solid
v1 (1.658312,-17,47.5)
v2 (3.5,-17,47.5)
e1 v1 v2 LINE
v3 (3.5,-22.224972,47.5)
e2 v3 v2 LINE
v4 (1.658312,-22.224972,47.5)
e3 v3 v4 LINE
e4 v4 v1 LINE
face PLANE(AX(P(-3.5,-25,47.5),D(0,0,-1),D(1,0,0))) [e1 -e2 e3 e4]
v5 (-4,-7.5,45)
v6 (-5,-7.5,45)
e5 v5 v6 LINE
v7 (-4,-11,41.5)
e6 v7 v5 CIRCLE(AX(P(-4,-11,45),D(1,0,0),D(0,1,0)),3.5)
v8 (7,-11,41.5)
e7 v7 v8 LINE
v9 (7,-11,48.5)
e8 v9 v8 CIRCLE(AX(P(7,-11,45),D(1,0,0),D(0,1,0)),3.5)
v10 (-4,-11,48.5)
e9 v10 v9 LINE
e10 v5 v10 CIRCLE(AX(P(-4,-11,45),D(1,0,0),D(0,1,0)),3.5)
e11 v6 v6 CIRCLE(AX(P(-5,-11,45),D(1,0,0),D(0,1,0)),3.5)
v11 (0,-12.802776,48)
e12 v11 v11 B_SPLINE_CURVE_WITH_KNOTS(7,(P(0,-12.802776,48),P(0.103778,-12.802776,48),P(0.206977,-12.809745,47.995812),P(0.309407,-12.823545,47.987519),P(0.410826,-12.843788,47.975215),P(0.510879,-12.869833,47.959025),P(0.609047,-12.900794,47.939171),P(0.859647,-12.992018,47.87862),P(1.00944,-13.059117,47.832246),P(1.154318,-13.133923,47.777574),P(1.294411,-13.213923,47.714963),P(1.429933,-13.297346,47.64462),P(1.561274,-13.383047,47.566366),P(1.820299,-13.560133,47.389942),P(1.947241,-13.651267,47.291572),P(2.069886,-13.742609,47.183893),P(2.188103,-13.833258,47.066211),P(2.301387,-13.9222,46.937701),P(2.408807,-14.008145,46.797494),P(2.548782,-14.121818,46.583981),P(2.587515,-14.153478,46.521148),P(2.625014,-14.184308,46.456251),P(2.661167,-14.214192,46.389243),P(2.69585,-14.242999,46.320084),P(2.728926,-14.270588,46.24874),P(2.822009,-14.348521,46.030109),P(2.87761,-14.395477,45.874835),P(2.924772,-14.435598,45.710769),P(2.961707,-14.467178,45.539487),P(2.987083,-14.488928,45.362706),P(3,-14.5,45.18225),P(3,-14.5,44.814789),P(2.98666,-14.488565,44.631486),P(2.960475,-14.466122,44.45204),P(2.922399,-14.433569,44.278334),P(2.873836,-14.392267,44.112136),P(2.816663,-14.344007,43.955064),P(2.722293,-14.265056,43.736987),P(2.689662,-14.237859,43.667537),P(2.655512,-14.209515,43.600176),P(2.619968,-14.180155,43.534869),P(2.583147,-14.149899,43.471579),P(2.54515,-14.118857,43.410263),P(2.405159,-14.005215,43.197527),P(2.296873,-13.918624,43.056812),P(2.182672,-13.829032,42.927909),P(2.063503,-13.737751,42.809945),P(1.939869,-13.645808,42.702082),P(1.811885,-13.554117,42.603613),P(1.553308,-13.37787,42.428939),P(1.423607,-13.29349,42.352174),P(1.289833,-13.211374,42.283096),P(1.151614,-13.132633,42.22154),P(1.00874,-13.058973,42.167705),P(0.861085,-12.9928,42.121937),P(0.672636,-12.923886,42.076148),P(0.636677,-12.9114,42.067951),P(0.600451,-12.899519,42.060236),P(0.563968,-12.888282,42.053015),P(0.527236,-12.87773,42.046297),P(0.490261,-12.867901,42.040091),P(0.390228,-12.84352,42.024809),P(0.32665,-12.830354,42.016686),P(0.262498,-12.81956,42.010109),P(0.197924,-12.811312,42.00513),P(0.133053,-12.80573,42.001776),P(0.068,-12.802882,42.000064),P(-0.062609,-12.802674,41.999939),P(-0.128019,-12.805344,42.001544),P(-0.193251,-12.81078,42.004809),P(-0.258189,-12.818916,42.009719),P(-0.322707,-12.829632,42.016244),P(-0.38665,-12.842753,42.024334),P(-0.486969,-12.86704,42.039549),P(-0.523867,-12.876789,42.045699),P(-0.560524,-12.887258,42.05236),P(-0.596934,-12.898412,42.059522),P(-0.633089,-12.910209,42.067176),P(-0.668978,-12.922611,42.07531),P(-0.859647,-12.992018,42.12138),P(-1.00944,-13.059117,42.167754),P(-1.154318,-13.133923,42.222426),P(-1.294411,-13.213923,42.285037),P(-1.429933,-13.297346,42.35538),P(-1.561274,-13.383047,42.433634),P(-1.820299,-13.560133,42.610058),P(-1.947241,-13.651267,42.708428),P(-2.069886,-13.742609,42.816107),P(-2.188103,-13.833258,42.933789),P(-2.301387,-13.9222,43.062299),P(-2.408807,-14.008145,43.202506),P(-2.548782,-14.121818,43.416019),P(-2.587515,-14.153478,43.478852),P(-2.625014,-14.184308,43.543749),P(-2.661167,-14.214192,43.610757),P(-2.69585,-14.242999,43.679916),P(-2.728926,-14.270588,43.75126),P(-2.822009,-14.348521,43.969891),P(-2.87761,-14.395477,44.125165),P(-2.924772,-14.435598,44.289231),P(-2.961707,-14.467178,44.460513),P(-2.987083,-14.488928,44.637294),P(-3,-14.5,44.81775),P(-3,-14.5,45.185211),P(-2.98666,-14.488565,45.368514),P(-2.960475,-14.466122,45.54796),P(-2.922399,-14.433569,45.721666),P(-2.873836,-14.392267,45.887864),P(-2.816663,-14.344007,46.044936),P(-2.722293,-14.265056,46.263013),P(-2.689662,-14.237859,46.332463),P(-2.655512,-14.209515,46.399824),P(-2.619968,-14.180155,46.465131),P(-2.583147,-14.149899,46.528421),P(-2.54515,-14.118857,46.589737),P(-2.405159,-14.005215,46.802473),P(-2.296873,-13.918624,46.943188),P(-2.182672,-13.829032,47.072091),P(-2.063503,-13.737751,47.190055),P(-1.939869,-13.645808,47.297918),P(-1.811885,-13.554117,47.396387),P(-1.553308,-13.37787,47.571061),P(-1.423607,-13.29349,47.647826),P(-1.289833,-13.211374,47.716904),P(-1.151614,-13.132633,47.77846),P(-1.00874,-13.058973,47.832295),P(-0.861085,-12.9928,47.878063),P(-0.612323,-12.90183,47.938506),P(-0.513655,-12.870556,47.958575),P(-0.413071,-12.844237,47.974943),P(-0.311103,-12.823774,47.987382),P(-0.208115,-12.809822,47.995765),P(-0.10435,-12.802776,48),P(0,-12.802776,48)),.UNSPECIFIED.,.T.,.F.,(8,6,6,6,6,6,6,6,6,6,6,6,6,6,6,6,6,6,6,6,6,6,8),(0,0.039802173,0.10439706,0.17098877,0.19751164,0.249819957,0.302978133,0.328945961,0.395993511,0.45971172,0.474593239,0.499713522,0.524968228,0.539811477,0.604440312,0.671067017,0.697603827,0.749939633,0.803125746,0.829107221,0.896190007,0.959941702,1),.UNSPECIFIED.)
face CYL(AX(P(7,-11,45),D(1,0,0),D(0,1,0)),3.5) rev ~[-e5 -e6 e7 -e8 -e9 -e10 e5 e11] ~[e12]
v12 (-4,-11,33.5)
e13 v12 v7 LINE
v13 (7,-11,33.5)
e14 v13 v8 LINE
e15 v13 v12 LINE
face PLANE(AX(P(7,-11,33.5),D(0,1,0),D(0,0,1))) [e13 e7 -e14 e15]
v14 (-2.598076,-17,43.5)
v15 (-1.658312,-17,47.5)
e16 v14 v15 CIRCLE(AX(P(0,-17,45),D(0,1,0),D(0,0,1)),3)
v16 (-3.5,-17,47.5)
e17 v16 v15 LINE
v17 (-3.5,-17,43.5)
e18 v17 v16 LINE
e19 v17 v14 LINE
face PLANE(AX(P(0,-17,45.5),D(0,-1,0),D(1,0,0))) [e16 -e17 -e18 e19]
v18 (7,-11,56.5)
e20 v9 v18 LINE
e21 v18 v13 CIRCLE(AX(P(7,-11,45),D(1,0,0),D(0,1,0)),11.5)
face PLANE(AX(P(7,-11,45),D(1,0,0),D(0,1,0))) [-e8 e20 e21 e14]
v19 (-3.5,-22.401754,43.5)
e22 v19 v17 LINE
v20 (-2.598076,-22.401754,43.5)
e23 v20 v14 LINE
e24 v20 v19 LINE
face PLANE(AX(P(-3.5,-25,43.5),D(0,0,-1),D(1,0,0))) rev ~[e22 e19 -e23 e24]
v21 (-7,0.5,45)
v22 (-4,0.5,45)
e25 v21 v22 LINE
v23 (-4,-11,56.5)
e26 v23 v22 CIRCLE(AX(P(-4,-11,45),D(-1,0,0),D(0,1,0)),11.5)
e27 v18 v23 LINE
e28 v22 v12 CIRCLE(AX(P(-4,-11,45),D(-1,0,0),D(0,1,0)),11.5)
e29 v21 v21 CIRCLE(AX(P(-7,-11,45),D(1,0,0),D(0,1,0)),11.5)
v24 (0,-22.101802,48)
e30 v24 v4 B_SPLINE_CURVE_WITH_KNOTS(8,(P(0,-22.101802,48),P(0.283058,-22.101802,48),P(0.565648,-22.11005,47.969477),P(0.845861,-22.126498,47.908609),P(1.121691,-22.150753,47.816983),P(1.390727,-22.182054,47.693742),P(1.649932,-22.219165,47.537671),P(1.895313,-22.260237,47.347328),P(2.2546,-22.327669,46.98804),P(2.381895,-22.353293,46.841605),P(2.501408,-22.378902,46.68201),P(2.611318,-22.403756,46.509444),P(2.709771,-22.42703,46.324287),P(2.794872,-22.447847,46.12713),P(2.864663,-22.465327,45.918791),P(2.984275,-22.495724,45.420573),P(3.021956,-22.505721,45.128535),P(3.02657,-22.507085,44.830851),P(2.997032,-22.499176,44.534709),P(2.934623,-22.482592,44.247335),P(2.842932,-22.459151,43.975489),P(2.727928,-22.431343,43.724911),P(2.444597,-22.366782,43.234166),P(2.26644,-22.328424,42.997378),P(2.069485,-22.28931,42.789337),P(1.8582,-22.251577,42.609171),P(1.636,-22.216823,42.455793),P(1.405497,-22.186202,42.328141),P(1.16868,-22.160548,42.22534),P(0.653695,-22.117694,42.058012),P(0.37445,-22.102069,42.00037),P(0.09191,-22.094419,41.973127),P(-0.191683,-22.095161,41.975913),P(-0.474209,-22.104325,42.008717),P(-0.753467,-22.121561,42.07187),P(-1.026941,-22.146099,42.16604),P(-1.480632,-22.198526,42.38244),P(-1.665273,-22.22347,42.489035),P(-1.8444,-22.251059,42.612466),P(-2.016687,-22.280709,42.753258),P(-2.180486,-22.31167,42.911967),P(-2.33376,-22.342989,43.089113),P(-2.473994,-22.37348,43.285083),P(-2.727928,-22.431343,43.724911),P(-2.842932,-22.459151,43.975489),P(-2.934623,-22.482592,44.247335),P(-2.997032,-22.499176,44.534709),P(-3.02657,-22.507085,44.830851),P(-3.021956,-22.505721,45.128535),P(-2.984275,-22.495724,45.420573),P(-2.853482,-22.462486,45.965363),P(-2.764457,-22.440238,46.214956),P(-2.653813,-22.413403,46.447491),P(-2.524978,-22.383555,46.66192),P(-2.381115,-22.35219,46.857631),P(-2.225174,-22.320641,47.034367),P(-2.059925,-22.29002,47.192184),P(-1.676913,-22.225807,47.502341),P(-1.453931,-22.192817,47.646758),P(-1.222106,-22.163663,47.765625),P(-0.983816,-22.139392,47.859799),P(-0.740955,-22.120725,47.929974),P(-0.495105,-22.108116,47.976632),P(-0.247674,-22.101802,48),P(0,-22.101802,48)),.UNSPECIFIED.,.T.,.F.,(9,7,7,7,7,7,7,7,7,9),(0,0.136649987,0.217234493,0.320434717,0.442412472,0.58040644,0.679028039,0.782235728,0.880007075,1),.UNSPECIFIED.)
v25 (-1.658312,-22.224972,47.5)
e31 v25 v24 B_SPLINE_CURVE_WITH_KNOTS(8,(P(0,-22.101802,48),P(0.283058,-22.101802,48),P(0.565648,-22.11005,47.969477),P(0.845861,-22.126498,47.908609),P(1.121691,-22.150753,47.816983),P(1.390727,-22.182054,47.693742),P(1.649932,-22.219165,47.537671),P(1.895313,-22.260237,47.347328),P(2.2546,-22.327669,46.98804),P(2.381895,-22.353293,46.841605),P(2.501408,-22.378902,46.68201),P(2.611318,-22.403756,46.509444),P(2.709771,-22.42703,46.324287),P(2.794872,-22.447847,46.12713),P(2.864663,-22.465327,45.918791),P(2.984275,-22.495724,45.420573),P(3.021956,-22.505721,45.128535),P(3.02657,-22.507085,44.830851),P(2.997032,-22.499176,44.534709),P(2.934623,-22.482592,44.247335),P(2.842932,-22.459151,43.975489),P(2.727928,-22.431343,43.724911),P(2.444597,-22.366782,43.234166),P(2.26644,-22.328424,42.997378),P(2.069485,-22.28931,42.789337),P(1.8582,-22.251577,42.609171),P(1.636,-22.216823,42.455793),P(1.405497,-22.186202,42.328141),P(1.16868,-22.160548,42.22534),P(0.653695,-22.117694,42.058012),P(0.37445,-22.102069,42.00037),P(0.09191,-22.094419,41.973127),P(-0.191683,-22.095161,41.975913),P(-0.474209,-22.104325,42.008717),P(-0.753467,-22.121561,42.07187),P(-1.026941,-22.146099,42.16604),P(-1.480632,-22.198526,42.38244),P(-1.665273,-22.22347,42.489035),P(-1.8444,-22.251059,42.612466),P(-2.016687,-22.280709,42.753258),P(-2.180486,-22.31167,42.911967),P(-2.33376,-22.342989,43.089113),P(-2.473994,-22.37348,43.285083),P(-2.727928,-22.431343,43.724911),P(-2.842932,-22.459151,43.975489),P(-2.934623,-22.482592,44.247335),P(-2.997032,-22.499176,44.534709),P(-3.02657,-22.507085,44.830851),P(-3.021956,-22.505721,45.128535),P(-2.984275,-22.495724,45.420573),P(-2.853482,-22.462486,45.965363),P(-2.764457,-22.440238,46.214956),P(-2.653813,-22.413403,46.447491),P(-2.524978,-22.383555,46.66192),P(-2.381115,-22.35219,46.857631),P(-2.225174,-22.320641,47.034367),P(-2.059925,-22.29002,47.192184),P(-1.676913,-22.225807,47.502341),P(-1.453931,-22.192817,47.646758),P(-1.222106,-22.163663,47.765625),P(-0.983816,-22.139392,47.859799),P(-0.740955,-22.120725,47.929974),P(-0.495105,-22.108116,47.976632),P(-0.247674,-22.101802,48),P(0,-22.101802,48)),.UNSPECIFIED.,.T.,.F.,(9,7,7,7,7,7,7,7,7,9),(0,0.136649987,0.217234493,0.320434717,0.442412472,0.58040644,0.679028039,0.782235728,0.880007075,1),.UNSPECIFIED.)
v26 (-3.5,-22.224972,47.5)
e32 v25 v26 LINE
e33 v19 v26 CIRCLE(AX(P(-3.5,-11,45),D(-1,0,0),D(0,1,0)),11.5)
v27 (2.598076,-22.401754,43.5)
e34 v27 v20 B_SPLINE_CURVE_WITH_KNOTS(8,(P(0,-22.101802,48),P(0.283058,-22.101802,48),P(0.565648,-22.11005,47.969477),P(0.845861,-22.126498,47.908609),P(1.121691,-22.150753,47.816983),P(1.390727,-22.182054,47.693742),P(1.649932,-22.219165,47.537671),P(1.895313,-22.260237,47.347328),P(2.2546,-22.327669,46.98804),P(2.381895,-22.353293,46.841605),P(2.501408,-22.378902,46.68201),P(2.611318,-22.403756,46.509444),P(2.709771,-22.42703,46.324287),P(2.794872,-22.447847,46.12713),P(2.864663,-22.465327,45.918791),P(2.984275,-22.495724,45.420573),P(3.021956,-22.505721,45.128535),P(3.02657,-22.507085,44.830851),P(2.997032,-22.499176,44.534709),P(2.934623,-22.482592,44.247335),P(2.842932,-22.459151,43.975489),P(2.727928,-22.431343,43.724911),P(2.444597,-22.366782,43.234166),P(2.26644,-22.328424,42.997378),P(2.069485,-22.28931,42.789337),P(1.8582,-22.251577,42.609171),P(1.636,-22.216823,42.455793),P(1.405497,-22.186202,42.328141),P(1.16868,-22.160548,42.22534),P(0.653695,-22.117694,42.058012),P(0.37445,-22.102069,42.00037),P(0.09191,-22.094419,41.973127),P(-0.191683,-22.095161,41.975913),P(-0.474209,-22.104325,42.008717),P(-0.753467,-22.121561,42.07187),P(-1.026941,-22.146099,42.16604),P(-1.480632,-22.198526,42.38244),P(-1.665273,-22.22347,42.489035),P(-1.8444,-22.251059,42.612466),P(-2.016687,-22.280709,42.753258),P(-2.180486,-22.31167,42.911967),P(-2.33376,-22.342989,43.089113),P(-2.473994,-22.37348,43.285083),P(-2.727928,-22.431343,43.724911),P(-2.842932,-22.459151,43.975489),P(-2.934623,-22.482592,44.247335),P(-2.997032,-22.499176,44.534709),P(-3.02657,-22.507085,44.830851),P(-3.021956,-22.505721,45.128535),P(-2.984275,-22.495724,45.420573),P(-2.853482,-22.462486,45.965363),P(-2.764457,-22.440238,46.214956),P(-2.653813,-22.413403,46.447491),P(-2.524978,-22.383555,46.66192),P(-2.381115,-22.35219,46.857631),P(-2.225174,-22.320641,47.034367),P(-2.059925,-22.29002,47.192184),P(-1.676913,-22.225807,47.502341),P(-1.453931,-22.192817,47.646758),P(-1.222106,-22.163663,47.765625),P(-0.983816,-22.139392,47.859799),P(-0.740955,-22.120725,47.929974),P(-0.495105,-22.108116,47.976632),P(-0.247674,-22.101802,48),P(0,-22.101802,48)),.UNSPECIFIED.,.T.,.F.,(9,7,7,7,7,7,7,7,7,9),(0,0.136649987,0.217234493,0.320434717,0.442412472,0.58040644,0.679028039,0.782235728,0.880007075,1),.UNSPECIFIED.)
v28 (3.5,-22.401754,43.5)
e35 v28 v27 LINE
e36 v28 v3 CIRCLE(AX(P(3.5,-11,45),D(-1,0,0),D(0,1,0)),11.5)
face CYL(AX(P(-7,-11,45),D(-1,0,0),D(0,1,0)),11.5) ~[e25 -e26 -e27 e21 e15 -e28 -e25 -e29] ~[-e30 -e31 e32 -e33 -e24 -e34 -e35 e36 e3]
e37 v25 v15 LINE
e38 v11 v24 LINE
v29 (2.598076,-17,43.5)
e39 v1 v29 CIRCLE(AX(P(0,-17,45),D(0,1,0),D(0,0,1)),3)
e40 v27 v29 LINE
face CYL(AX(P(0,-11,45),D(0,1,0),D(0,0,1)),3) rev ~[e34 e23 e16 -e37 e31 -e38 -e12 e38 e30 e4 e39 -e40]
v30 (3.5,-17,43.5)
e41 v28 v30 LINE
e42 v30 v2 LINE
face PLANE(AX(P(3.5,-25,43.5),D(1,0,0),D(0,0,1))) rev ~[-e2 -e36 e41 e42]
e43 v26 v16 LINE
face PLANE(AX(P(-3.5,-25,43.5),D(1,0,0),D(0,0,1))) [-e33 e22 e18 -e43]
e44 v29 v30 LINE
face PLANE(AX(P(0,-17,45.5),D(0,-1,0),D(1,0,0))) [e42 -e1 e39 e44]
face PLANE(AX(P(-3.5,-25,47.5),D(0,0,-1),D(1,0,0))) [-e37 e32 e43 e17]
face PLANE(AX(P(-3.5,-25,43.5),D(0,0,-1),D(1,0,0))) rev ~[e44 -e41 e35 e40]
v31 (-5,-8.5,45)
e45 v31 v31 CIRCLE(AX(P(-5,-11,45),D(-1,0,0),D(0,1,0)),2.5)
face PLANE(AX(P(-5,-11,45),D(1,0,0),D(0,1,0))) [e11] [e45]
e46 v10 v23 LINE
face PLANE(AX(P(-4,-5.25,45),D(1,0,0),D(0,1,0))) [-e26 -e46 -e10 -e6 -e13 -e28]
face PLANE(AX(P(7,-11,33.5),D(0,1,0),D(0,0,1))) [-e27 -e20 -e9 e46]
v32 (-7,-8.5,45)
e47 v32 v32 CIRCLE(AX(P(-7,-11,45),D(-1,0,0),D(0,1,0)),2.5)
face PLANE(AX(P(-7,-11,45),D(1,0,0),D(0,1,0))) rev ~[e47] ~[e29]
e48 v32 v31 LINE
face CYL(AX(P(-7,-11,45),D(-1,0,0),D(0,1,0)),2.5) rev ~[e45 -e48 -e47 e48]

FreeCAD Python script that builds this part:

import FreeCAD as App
import Part
import Sketcher
from FreeCAD import Vector

doc = App.newDocument("Part")
body = doc.addObject("PartDesign::Body", "Body")

# Sketch on YZ plane
sketch1 = doc.addObject("Sketcher::SketchObject", "Sketch")
body.addObject(sketch1)
sketch1.AttachmentSupport = (doc.YZ_Plane, [""])
sketch1.MapMode = "FlatFace"
sketch1.addGeometry(Part.Circle(Vector(-11, 45, 0), Vector(0, 0, 1), 12), False)
sketch1.addConstraint([
    Sketcher.Constraint("Diameter", 0, 23.0),
    Sketcher.Constraint("DistanceX", 0, 3, -1, 1, 11.0),
    Sketcher.Constraint("DistanceY", -1, 1, 0, 3, 45.0),
])
pad1 = doc.addObject("PartDesign::Pad", "Pad")
body.addObject(pad1)
pad1.Profile = sketch1
pad1.Length = 14

# Sketch on YZ plane
sketch2 = doc.addObject("Sketcher::SketchObject", "Sketch001")
body.addObject(sketch2)
sketch2.AttachmentSupport = (doc.YZ_Plane, [""])
sketch2.MapMode = "FlatFace"
sketch2.AttachmentOffset = App.Placement(Vector(0, 0, 14), App.Rotation())
sketch2.addGeometry([
    Part.LineSegment(Vector(-11, 56, 0), Vector(-11, 34, 0)),
    Part.LineSegment(Vector(-11, 34, 0), Vector(0, 34, 0)),
    Part.LineSegment(Vector(0, 34, 0), Vector(0, 56, 0)),
    Part.LineSegment(Vector(0, 56, 0), Vector(-11, 56, 0)),
], False)
sketch2.addConstraint([
    Sketcher.Constraint("Coincident", 0, 2, 1, 1),
    Sketcher.Constraint("Coincident", 1, 2, 2, 1),
    Sketcher.Constraint("Coincident", 2, 2, 3, 1),
    Sketcher.Constraint("Coincident", 3, 2, 0, 1),
    Sketcher.Constraint("Vertical", 0),
    Sketcher.Constraint("Horizontal", 1),
    Sketcher.Constraint("Vertical", 2),
    Sketcher.Constraint("Horizontal", 3),
    Sketcher.Constraint("DistanceY", 0, 2, 0, 1, 23.0),
    Sketcher.Constraint("DistanceX", 1, 1, 1, 2, 11.5),
    Sketcher.Constraint("DistanceX", 0, 2, -1, 1, 11.0),
    Sketcher.Constraint("DistanceY", -1, 1, 0, 2, 33.5),
])
pocket1 = doc.addObject("PartDesign::Pocket", "Pocket")
body.addObject(pocket1)
pocket1.Profile = sketch2
pocket1.Length = 11

# Sketch on XZ plane
sketch3 = doc.addObject("Sketcher::SketchObject", "Sketch002")
body.addObject(sketch3)
sketch3.AttachmentSupport = (doc.XZ_Plane, [""])
sketch3.MapMode = "FlatFace"
sketch3.AttachmentOffset = App.Placement(Vector(0, 0, 11), App.Rotation())
sketch3.addGeometry(Part.Circle(Vector(7, 45, 0), Vector(0, 0, 1), 3), False)
sketch3.addConstraint([
    Sketcher.Constraint("Diameter", 0, 6.0),
    Sketcher.Constraint("DistanceX", -1, 1, 0, 3, 7.0),
    Sketcher.Constraint("DistanceY", -1, 1, 0, 3, 45.0),
])
pocket2 = doc.addObject("PartDesign::Pocket", "Pocket001")
body.addObject(pocket2)
pocket2.Profile = sketch3
pocket2.Type = "ThroughAll"
pocket2.Reversed = True

# Sketch on YZ plane
sketch4 = doc.addObject("Sketcher::SketchObject", "Sketch003")
body.addObject(sketch4)
sketch4.AttachmentSupport = (doc.YZ_Plane, [""])
sketch4.MapMode = "FlatFace"
sketch4.addGeometry(Part.Circle(Vector(-11, 45, 0), Vector(0, 0, 1), 2.5), False)
sketch4.addConstraint([
    Sketcher.Constraint("Diameter", 0, 5.0),
    Sketcher.Constraint("DistanceX", 0, 3, -1, 1, 11.0),
    Sketcher.Constraint("DistanceY", -1, 1, 0, 3, 45.0),
])
pocket3 = doc.addObject("PartDesign::Pocket", "Pocket002")
body.addObject(pocket3)
pocket3.Profile = sketch4
pocket3.Length = 3
pocket3.Reversed = True

# Sketch on YZ plane
sketch5 = doc.addObject("Sketcher::SketchObject", "Sketch004")
body.addObject(sketch5)
sketch5.AttachmentSupport = (doc.YZ_Plane, [""])
sketch5.MapMode = "FlatFace"
sketch5.AttachmentOffset = App.Placement(Vector(0, 0, 14), App.Rotation())
sketch5.addGeometry(Part.Circle(Vector(-11, 45, 0), Vector(0, 0, 1), 3.5), False)
sketch5.addConstraint([
    Sketcher.Constraint("Diameter", 0, 7.0),
    Sketcher.Constraint("DistanceX", 0, 3, -1, 1, 11.0),
    Sketcher.Constraint("DistanceY", -1, 1, 0, 3, 45.0),
])
pocket4 = doc.addObject("PartDesign::Pocket", "Pocket003")
body.addObject(pocket4)
pocket4.Profile = sketch5
pocket4.Length = 12

# Sketch on XZ plane
sketch6 = doc.addObject("Sketcher::SketchObject", "Sketch005")
body.addObject(sketch6)
sketch6.AttachmentSupport = (doc.XZ_Plane, [""])
sketch6.MapMode = "FlatFace"
sketch6.AttachmentOffset = App.Placement(Vector(0, 0, 25), App.Rotation())
sketch6.addGeometry([
    Part.LineSegment(Vector(3.5, 47.5, 0), Vector(3.5, 43.5, 0)),
    Part.LineSegment(Vector(3.5, 43.5, 0), Vector(10.5, 43.5, 0)),
    Part.LineSegment(Vector(10.5, 43.5, 0), Vector(10.5, 47.5, 0)),
    Part.LineSegment(Vector(10.5, 47.5, 0), Vector(3.5, 47.5, 0)),
], False)
sketch6.addConstraint([
    Sketcher.Constraint("Coincident", 0, 2, 1, 1),
    Sketcher.Constraint("Coincident", 1, 2, 2, 1),
    Sketcher.Constraint("Coincident", 2, 2, 3, 1),
    Sketcher.Constraint("Coincident", 3, 2, 0, 1),
    Sketcher.Constraint("Vertical", 0),
    Sketcher.Constraint("Horizontal", 1),
    Sketcher.Constraint("Vertical", 2),
    Sketcher.Constraint("Horizontal", 3),
    Sketcher.Constraint("DistanceX", 1, 1, 1, 2, 7.0),
    Sketcher.Constraint("DistanceY", 0, 2, 0, 1, 4.0),
    Sketcher.Constraint("DistanceX", -1, 1, 0, 2, 3.5),
    Sketcher.Constraint("DistanceY", -1, 1, 0, 2, 43.5),
])
pocket5 = doc.addObject("PartDesign::Pocket", "Pocket004")
body.addObject(pocket5)
pocket5.Profile = sketch6
pocket5.Length = 8
body2 = doc.addObject("PartDesign::Body", "Body001")
doc.recompute()

body.Placement = App.Placement(Vector(-7, 0, 0), App.Rotation(Vector(0, 0, 1), 0))
boolean = doc.addObject("PartDesign::Boolean", "Boolean")
body2.addObject(boolean)
boolean.Type = "Fuse"
boolean.addObjects([body])

doc.recompute()
